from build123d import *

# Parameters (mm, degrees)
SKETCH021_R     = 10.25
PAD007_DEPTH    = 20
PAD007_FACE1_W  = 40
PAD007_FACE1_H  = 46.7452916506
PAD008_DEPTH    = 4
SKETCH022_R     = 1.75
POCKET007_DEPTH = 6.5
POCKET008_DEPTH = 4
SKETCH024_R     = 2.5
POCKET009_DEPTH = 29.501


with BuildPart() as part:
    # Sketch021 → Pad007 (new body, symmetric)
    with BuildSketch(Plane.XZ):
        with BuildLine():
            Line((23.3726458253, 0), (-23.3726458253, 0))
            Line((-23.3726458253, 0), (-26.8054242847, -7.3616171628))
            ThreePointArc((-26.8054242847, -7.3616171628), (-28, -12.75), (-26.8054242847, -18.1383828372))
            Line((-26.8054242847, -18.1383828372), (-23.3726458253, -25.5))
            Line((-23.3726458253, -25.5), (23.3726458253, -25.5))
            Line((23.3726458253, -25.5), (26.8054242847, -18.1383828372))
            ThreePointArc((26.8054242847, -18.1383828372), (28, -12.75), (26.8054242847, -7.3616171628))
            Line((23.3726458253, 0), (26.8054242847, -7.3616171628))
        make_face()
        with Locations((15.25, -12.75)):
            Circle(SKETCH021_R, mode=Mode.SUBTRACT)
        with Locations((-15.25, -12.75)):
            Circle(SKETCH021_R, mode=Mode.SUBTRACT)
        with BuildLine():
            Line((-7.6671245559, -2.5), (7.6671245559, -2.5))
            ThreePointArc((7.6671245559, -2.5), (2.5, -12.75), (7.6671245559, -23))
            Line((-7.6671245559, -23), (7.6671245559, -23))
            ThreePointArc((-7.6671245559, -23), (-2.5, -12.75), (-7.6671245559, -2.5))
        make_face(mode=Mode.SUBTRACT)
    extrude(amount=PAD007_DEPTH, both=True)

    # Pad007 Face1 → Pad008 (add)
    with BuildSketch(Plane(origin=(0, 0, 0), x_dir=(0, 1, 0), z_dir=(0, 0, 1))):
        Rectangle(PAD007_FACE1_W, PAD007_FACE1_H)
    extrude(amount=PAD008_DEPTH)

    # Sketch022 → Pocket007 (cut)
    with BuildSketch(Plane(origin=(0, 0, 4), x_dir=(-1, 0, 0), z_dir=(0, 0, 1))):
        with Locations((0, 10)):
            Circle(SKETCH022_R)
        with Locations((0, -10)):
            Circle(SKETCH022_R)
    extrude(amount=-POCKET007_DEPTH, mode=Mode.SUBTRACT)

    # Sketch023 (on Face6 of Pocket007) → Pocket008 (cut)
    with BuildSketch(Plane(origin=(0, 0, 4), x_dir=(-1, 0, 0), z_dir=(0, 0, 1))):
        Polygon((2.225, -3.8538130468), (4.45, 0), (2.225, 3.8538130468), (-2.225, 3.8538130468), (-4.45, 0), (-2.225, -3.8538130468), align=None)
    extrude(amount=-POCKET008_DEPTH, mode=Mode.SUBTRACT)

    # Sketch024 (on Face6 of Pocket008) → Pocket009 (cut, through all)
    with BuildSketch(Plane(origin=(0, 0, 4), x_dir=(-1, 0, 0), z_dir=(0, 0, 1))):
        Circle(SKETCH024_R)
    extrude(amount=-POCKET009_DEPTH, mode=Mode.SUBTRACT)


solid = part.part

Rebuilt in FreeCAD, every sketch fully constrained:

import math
import FreeCAD as App
import Part
import Sketcher

V = App.Vector
Q = App.Units.Quantity


def add_polygon(sketch, points):
    """Adds a closed chain of lines whose ends are joined by coincident constraints."""
    first, n = sketch.GeometryCount, len(points)
    for a, b in zip(points, points[1:] + points[:1]):
        sketch.addGeometry(Part.LineSegment(App.Vector(*a, 0), App.Vector(*b, 0)), False)
    for i in range(n):
        sketch.addConstraint(Sketcher.Constraint("Coincident", first + i, 2, first + (i + 1) % n, 1))

doc = App.newDocument("Part")
body = doc.addObject("PartDesign::Body", "Body")

# Sketch on XZ plane
sketch1 = body.newObject("Sketcher::SketchObject", "Sketch")
sketch1.AttachmentSupport = (doc.getObject("XZ_Plane"), [""])
sketch1.MapMode = "FlatFace"
sketch1.addGeometry([
    Part.LineSegment(V(23, 0, 0), V(-23, 0, 0)),  # 0
    Part.LineSegment(V(-23, 0, 0), V(-27, -7, 0)),  # 1
    Part.ArcOfCircle(Part.Circle(V(-15, -13, 0), V(0, 0, 1), 13), math.radians(155), math.radians(205)),  # 2
    Part.LineSegment(V(-27, -18, 0), V(-23, -26, 0)),  # 3
    Part.LineSegment(V(-23, -26, 0), V(23, -26, 0)),  # 4
    Part.LineSegment(V(23, -26, 0), V(27, -18, 0)),  # 5
    Part.ArcOfCircle(Part.Circle(V(15, -13, 0), V(0, 0, 1), 13), math.radians(-25), math.radians(25)),  # 6
    Part.LineSegment(V(27, -7, 0), V(23, 0, 0)),  # 7
    Part.Circle(V(-15, -13, 0), V(0, 0, 1), 10),  # 8
    Part.ArcOfCircle(Part.Circle(V(-15, -13, 0), V(0, 0, 1), 13), math.radians(-54), math.radians(54)),  # 9
    Part.LineSegment(V(-8, -2, 0), V(8, -2, 0)),  # 10
    Part.ArcOfCircle(Part.Circle(V(15, -13, 0), V(0, 0, 1), 13), math.radians(126), math.radians(234)),  # 11
    Part.LineSegment(V(8, -23, 0), V(-8, -23, 0)),  # 12
    Part.Circle(V(15, -13, 0), V(0, 0, 1), 10),  # 13
], False)
sketch1.addConstraint([
    Sketcher.Constraint("Coincident", 0, 2, 1, 1),
    Sketcher.Constraint("Tangent", 1, 2, 2, 1),
    Sketcher.Constraint("Tangent", 2, 2, 3, 1),
    Sketcher.Constraint("Coincident", 3, 2, 4, 1),
    Sketcher.Constraint("Coincident", 4, 2, 5, 1),
    Sketcher.Constraint("Tangent", 5, 2, 6, 1),
    Sketcher.Constraint("Tangent", 6, 2, 7, 1),
    Sketcher.Constraint("Coincident", 7, 2, 0, 1),
    Sketcher.Constraint("Coincident", 9, 2, 10, 1),
    Sketcher.Constraint("Coincident", 10, 2, 11, 1),
    Sketcher.Constraint("Coincident", 11, 2, 12, 1),
    Sketcher.Constraint("Coincident", 12, 2, 9, 1),
    Sketcher.Constraint("Horizontal", 0),
    Sketcher.Constraint("Horizontal", 4),
    Sketcher.Constraint("Horizontal", 10),
    Sketcher.Constraint("Horizontal", 12),
    Sketcher.Constraint("Coincident", 8, 3, 2, 3),
    Sketcher.Constraint("Coincident", 9, 3, 2, 3),
    Sketcher.Constraint("Coincident", 11, 3, 6, 3),
    Sketcher.Constraint("Coincident", 13, 3, 6, 3),
    Sketcher.Constraint("Equal", 2, 6),
    Sketcher.Constraint("Equal", 6, 9),
    Sketcher.Constraint("Equal", 9, 11),
    Sketcher.Constraint("Equal", 8, 13),
    Sketcher.Constraint("Symmetric", 0, 2, 7, 2, -1, 1),
    Sketcher.Constraint("Symmetric", 2, 3, 6, 3, -2),
    Sketcher.Constraint("Parallel", 1, 5),
    Sketcher.Constraint("Parallel", 3, 7),
    Sketcher.Constraint("Vertical", 0, 2, 3, 2),
    Sketcher.Constraint("Vertical", 10, 2, 11, 2),
    Sketcher.Constraint("Diameter", 8, 20.5),
    Sketcher.Constraint("Angle", 1, Q("-115 deg")),
    Sketcher.Constraint("Radius", 2, 12.75),
    Sketcher.Constraint("DistanceY", 11, 2, -1, 1, 23.0),
    Sketcher.Constraint("DistanceY", 3, 2, -1, 1, 25.5),
    Sketcher.Constraint("DistanceX", 2, 3, 6, 3, 30.5),
])
pad1 = body.newObject("PartDesign::Pad", "Pad")
pad1.Profile = sketch1
pad1.Length = 40
pad1.Midplane = True

# Sketch on XY plane
sketch2 = body.newObject("Sketcher::SketchObject", "Sketch001")
sketch2.AttachmentSupport = (doc.getObject("XY_Plane"), [""])
sketch2.MapMode = "FlatFace"
add_polygon(sketch2, [(-23, -20), (23, -20), (23, 20), (-23, 20)])  # lines 0-3
sketch2.addConstraint([
    Sketcher.Constraint("Horizontal", 0),
    Sketcher.Constraint("Vertical", 1),
    Sketcher.Constraint("Horizontal", 2),
    Sketcher.Constraint("Vertical", 3),
    Sketcher.Constraint("Symmetric", 0, 2, 2, 2, -1, 1),
    Sketcher.Constraint("DistanceY", 1, 1, 1, 2, 40.0),
    Sketcher.Constraint("DistanceX", 0, 1, 0, 2, 46.745292),
])
pad2 = body.newObject("PartDesign::Pad", "Pad001")
pad2.Profile = sketch2
pad2.Length = 4

# Sketch on XY plane
sketch3 = body.newObject("Sketcher::SketchObject", "Sketch002")
sketch3.AttachmentSupport = (doc.getObject("XY_Plane"), [""])
sketch3.MapMode = "FlatFace"
sketch3.AttachmentOffset = App.Placement(V(0, 0, 4), App.Rotation())
sketch3.addGeometry([
    Part.Circle(V(0, -10, 0), V(0, 0, 1), 1.8),
    Part.Circle(V(0, 10, 0), V(0, 0, 1), 1.8),
], False)
sketch3.addConstraint([
    Sketcher.Constraint("Equal", 0, 1),
    Sketcher.Constraint("Symmetric", 0, 3, 1, 3, -1, 1),
    Sketcher.Constraint("PointOnObject", 0, 3, -2),
    Sketcher.Constraint("Diameter", 0, 3.5),
    Sketcher.Constraint("DistanceY", 0, 3, -1, 1, 10.0),
])
pocket1 = body.newObject("PartDesign::Pocket", "Pocket")
pocket1.Profile = sketch3
pocket1.Length = 6.5

# Sketch on XY plane
sketch4 = body.newObject("Sketcher::SketchObject", "Sketch003")
sketch4.AttachmentSupport = (doc.getObject("XY_Plane"), [""])
sketch4.MapMode = "FlatFace"
sketch4.AttachmentOffset = App.Placement(V(0, 0, 4), App.Rotation())
add_polygon(sketch4, [(-2.2, 3.9), (-4.5, 0), (-2.2, -3.9), (2.2, -3.9), (4.5, 0), (2.2, 3.9)])  # lines 0-5
sketch4.addConstraint([
    Sketcher.Constraint("Horizontal", 2),
    Sketcher.Constraint("Horizontal", 5),
    Sketcher.Constraint("Symmetric", 0, 2, 3, 2, -1, 1),
    Sketcher.Constraint("Symmetric", 1, 2, 4, 2, -1, 1),
    Sketcher.Constraint("PointOnObject", 0, 2, -1),
    Sketcher.Constraint("Parallel", 0, 3),
    Sketcher.Constraint("Vertical", 2, 2, 4, 2),
    Sketcher.Constraint("Angle", 0, Q("-120 deg")),
    Sketcher.Constraint("DistanceX", 2, 1, 2, 2, 4.45),
    Sketcher.Constraint("DistanceX", 0, 2, 3, 2, 8.9),
])
pocket2 = body.newObject("PartDesign::Pocket", "Pocket001")
pocket2.Profile = sketch4
pocket2.Length = 4

# Sketch on XY plane
sketch5 = body.newObject("Sketcher::SketchObject", "Sketch004")
sketch5.AttachmentSupport = (doc.getObject("XY_Plane"), [""])
sketch5.MapMode = "FlatFace"
sketch5.AttachmentOffset = App.Placement(V(0, 0, 4), App.Rotation())
sketch5.addGeometry(Part.Circle(V(0, 0, 0), V(0, 0, 1), 2.5), False)
sketch5.addConstraint([
    Sketcher.Constraint("Coincident", 0, 3, -1, 1),
    Sketcher.Constraint("Diameter", 0, 5.0),
])
pocket3 = body.newObject("PartDesign::Pocket", "Pocket002")
pocket3.Profile = sketch5
pocket3.Type = "ThroughAll"

doc.recompute()
